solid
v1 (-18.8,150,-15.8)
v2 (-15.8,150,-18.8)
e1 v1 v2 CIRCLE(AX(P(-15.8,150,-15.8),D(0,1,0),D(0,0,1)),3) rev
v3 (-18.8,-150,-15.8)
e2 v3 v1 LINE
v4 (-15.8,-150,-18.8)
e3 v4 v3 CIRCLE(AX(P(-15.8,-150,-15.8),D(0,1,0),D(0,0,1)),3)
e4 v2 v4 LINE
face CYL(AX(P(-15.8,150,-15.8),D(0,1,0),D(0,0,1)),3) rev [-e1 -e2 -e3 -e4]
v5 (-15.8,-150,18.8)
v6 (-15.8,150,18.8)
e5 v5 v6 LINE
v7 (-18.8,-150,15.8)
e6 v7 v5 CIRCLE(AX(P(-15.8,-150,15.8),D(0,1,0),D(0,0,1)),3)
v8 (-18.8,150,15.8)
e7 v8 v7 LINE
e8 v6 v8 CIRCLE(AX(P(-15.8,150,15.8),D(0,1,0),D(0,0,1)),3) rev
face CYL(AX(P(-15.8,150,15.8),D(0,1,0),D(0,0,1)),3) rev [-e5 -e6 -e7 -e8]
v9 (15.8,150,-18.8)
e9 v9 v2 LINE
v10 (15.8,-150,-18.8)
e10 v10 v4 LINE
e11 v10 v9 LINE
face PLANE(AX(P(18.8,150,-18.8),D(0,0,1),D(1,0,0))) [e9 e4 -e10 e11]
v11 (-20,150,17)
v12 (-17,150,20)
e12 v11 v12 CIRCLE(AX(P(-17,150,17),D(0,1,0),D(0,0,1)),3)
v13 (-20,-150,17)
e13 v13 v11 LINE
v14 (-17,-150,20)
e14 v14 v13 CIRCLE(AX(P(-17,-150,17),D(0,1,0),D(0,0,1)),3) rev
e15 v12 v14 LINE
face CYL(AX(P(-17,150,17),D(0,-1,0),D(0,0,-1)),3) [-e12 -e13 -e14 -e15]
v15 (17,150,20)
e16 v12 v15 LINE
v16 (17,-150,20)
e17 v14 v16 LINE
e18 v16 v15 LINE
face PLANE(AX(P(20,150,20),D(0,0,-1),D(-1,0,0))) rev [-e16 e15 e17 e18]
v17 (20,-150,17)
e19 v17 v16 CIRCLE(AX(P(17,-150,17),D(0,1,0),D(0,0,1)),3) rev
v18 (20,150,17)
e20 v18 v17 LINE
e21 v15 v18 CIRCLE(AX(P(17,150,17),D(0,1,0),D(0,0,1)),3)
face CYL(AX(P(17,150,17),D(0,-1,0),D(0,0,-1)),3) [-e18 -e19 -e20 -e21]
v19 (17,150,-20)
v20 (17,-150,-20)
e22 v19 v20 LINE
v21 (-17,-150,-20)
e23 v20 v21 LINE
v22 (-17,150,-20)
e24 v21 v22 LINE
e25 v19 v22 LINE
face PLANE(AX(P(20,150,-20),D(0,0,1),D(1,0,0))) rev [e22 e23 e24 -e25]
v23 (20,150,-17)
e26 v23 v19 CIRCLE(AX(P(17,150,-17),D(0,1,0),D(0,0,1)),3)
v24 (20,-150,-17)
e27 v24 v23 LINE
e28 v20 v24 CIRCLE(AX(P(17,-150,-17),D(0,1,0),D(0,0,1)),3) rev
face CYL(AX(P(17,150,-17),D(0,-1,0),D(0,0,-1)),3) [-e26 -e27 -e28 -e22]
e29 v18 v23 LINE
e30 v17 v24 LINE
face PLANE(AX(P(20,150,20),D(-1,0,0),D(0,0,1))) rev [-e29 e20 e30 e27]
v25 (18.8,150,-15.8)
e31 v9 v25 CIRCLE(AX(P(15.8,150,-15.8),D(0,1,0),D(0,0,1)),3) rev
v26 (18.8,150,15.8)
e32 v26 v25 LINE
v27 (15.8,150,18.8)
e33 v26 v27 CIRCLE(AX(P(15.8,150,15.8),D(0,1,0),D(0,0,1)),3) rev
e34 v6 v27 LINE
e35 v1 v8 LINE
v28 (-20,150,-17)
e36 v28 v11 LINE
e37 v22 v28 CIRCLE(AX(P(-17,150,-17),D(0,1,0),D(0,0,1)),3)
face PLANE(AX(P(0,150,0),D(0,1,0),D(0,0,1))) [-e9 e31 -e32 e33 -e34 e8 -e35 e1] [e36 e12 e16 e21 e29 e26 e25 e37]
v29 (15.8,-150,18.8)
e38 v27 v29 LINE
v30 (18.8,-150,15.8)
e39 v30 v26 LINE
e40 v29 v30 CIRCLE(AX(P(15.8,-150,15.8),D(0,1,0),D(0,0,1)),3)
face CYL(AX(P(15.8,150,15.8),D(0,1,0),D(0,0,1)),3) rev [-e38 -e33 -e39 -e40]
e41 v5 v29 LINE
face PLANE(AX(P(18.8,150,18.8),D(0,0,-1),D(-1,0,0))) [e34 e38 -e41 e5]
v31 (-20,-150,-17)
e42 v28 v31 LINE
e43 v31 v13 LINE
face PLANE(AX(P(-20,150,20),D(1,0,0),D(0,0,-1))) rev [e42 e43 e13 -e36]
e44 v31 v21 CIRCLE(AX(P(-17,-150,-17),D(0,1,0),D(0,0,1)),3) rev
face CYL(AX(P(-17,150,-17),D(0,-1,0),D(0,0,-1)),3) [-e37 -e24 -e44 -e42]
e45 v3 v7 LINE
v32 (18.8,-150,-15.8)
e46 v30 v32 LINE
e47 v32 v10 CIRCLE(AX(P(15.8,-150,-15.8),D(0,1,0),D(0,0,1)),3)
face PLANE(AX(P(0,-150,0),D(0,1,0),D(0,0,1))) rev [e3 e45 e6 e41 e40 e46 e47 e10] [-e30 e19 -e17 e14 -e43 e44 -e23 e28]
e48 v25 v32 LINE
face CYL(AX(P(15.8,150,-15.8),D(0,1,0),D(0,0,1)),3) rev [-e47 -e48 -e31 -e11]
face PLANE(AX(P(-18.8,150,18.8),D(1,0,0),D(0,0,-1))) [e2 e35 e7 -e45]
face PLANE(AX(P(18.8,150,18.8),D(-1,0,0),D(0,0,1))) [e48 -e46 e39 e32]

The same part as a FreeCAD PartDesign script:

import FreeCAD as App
import Part
import Sketcher

V = App.Vector
Q = App.Units.Quantity


def edges_at(feature, points):
    """Names of the edges that pass closest to the given points."""
    edges = feature.Shape.Edges
    near = lambda p: min(range(len(edges)), key=lambda i: edges[i].distToShape(Part.Vertex(*p))[0])
    return sorted({f"Edge{near(p) + 1}" for p in points})

doc = App.newDocument("Part")
body = doc.addObject("PartDesign::Body", "Body")

sketch1 = body.newObject("Sketcher::SketchObject", "Sketch")
sketch1.AttachmentSupport = (doc.getObject("XZ_Plane"), [""])
sketch1.MapMode = "FlatFace"
sketch1.addGeometry([
    Part.LineSegment(V(-20, -20, 0), V(-20, 20, 0)),
    Part.LineSegment(V(-20, 20, 0), V(20, 20, 0)),
    Part.LineSegment(V(20, 20, 0), V(20, -20, 0)),
    Part.LineSegment(V(20, -20, 0), V(-20, -20, 0)),
    Part.LineSegment(V(19, 19, 0), V(-19, 19, 0)),
    Part.LineSegment(V(-19, 19, 0), V(-19, -19, 0)),
    Part.LineSegment(V(-19, -19, 0), V(19, -19, 0)),
    Part.LineSegment(V(19, -19, 0), V(19, 19, 0)),
], False)
sketch1.addConstraint([
    Sketcher.Constraint("Coincident", 0, 2, 1, 1),
    Sketcher.Constraint("Coincident", 1, 2, 2, 1),
    Sketcher.Constraint("Coincident", 2, 2, 3, 1),
    Sketcher.Constraint("Coincident", 3, 2, 0, 1),
    Sketcher.Constraint("Coincident", 4, 2, 5, 1),
    Sketcher.Constraint("Coincident", 5, 2, 6, 1),
    Sketcher.Constraint("Coincident", 6, 2, 7, 1),
    Sketcher.Constraint("Coincident", 7, 2, 4, 1),
    Sketcher.Constraint("Vertical", 0),
    Sketcher.Constraint("Horizontal", 1),
    Sketcher.Constraint("Vertical", 2),
    Sketcher.Constraint("Horizontal", 3),
    Sketcher.Constraint("Horizontal", 4),
    Sketcher.Constraint("Vertical", 5),
    Sketcher.Constraint("Horizontal", 6),
    Sketcher.Constraint("Vertical", 7),
    Sketcher.Constraint("Symmetric", 0, 2, 2, 2, -1, 1),
    Sketcher.Constraint("Symmetric", 4, 2, 6, 2, -1, 1),
    Sketcher.Constraint("Equal", 3, 0),
    Sketcher.Constraint("Equal", 6, 5),
    Sketcher.Constraint("DistanceX", 1, 1, 1, 2, Q("40 mm")),
    Sketcher.Constraint("DistanceX", 4, 2, 4, 1, Q("37.6 mm")),
])
pad1 = body.newObject("PartDesign::Pad", "Pad")
pad1.Profile = sketch1
pad1.Length = 300
pad1.Midplane = True
doc.recompute()

fillet = body.newObject("PartDesign::Fillet", "Fillet")
fillet.Base = (pad1, edges_at(pad1, [
    (-18.8, 0, 18.8),
    (18.8, 0, 18.8),
    (18.8, 0, -18.8),
    (-18.8, 0, -18.8),
    (-20, 0, -20),
    (20, 0, -20),
    (20, 0, 20),
    (-20, 0, 20),
]))
fillet.Radius = 3

doc.recompute()
